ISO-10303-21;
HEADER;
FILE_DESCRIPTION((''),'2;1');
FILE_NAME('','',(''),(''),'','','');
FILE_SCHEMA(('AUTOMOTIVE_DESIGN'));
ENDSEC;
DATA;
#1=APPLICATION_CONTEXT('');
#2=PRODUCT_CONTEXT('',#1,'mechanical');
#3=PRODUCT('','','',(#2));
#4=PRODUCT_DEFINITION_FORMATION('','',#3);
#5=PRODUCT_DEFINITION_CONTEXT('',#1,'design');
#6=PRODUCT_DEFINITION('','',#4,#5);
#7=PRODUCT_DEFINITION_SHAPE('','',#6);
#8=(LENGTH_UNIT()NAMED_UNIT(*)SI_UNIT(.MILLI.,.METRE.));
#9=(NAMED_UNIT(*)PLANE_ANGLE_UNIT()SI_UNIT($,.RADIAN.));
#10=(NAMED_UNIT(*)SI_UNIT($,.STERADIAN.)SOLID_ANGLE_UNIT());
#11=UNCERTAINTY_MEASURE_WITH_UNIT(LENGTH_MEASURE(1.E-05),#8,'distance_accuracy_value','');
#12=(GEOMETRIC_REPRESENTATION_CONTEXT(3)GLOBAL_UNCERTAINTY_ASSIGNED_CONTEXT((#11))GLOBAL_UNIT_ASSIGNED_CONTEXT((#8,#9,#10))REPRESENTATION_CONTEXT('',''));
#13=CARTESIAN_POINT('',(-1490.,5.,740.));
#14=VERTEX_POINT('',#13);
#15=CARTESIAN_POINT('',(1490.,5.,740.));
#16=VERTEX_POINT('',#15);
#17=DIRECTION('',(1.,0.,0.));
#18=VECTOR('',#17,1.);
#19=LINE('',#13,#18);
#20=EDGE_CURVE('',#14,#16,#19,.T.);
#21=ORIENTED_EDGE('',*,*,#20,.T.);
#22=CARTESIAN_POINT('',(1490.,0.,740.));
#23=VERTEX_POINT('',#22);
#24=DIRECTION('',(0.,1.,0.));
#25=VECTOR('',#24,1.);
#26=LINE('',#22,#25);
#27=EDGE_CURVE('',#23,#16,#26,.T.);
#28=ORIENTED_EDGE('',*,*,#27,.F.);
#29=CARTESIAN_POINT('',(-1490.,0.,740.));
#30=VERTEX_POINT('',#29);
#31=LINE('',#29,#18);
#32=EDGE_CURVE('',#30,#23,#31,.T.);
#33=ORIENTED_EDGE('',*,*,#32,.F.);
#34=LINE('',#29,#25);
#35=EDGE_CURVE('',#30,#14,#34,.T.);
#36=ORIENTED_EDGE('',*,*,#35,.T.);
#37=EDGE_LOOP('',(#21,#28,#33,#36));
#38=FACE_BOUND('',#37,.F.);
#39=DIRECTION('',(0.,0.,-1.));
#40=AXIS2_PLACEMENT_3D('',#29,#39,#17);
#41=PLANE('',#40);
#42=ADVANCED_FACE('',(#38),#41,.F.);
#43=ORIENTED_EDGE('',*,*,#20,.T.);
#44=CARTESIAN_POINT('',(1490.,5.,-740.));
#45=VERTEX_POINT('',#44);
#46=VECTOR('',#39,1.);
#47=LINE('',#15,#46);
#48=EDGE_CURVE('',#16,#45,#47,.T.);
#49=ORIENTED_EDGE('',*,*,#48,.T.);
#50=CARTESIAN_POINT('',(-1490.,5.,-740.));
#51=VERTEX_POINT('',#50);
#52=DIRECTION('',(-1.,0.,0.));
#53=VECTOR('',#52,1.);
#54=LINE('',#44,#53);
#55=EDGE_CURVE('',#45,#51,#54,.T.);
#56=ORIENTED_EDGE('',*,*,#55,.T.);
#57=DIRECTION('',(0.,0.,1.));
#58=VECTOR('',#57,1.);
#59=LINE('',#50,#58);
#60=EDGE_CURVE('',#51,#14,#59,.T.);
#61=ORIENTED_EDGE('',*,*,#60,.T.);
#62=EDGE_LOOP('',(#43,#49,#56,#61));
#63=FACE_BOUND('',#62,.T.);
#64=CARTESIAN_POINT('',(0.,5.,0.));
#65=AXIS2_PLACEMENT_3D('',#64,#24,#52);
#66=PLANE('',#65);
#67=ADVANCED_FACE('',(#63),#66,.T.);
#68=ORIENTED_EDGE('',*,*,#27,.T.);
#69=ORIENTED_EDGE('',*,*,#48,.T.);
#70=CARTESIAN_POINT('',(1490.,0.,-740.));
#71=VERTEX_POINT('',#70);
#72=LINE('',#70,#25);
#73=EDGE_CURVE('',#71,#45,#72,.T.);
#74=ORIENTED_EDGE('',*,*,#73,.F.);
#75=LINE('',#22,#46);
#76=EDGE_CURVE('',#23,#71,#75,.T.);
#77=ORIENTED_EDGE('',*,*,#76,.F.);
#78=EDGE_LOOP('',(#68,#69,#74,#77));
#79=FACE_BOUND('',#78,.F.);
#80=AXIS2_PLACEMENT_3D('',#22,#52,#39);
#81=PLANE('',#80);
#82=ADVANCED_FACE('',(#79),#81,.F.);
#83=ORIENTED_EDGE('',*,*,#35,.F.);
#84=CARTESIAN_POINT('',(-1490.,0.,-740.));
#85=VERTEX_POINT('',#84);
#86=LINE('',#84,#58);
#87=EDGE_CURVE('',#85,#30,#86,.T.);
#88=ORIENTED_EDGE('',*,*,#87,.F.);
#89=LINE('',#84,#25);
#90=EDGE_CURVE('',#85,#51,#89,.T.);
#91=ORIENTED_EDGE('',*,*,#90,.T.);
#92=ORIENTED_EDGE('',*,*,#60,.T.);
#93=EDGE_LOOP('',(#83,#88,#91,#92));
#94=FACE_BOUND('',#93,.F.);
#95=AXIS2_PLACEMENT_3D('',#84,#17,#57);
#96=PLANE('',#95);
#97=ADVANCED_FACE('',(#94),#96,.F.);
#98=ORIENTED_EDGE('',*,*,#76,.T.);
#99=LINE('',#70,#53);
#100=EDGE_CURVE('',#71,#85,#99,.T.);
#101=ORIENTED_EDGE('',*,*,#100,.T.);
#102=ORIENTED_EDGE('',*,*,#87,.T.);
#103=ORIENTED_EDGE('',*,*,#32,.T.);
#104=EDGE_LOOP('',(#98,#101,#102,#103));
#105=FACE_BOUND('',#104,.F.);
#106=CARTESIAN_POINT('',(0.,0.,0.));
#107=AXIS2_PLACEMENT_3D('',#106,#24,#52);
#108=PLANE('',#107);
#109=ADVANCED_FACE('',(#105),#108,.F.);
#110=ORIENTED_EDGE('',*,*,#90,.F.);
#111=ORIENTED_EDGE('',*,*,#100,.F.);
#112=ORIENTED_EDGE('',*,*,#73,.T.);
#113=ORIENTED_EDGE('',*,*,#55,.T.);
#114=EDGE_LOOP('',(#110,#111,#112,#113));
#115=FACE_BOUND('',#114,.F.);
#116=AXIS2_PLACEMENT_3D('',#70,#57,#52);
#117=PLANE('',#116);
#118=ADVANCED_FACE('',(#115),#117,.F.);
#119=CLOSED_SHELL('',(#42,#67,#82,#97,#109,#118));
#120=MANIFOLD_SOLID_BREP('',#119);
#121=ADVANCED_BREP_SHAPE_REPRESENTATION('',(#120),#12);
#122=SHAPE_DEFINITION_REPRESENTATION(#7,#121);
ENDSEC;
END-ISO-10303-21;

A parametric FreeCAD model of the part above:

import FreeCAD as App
import Part
import Sketcher
Q = App.Units.Quantity

doc = App.newDocument("Part")
body = doc.addObject("PartDesign::Body", "Body")

# Sketch on XZ plane
sketch1 = body.newObject("Sketcher::SketchObject", "Sketch")
sketch1.AttachmentSupport = (doc.getObject("XZ_Plane"), [""])
sketch1.MapMode = "FlatFace"
sketch1.addGeometry([
    Part.LineSegment(App.Vector(-1490, -740, 0), App.Vector(-1490, 740, 0)),
    Part.LineSegment(App.Vector(-1490, 740, 0), App.Vector(1490, 740, 0)),
    Part.LineSegment(App.Vector(1490, 740, 0), App.Vector(1490, -740, 0)),
    Part.LineSegment(App.Vector(1490, -740, 0), App.Vector(-1490, -740, 0)),
], False)
sketch1.addConstraint([
    Sketcher.Constraint("Coincident", 0, 2, 1, 1),
    Sketcher.Constraint("Coincident", 1, 2, 2, 1),
    Sketcher.Constraint("Coincident", 2, 2, 3, 1),
    Sketcher.Constraint("Coincident", 3, 2, 0, 1),
    Sketcher.Constraint("Vertical", 0),
    Sketcher.Constraint("Horizontal", 1),
    Sketcher.Constraint("Vertical", 2),
    Sketcher.Constraint("Horizontal", 3),
    Sketcher.Constraint("Symmetric", 0, 2, 2, 2, -1, 1),
    Sketcher.Constraint("DistanceX", 1, 1, 1, 2, Q("2980 mm")),
    Sketcher.Constraint("DistanceY", 0, 1, 0, 2, Q("1480 mm")),
])
pad1 = body.newObject("PartDesign::Pad", "Pad")
pad1.Profile = sketch1
pad1.Length = 5
pad1.Reversed = True

doc.recompute()
